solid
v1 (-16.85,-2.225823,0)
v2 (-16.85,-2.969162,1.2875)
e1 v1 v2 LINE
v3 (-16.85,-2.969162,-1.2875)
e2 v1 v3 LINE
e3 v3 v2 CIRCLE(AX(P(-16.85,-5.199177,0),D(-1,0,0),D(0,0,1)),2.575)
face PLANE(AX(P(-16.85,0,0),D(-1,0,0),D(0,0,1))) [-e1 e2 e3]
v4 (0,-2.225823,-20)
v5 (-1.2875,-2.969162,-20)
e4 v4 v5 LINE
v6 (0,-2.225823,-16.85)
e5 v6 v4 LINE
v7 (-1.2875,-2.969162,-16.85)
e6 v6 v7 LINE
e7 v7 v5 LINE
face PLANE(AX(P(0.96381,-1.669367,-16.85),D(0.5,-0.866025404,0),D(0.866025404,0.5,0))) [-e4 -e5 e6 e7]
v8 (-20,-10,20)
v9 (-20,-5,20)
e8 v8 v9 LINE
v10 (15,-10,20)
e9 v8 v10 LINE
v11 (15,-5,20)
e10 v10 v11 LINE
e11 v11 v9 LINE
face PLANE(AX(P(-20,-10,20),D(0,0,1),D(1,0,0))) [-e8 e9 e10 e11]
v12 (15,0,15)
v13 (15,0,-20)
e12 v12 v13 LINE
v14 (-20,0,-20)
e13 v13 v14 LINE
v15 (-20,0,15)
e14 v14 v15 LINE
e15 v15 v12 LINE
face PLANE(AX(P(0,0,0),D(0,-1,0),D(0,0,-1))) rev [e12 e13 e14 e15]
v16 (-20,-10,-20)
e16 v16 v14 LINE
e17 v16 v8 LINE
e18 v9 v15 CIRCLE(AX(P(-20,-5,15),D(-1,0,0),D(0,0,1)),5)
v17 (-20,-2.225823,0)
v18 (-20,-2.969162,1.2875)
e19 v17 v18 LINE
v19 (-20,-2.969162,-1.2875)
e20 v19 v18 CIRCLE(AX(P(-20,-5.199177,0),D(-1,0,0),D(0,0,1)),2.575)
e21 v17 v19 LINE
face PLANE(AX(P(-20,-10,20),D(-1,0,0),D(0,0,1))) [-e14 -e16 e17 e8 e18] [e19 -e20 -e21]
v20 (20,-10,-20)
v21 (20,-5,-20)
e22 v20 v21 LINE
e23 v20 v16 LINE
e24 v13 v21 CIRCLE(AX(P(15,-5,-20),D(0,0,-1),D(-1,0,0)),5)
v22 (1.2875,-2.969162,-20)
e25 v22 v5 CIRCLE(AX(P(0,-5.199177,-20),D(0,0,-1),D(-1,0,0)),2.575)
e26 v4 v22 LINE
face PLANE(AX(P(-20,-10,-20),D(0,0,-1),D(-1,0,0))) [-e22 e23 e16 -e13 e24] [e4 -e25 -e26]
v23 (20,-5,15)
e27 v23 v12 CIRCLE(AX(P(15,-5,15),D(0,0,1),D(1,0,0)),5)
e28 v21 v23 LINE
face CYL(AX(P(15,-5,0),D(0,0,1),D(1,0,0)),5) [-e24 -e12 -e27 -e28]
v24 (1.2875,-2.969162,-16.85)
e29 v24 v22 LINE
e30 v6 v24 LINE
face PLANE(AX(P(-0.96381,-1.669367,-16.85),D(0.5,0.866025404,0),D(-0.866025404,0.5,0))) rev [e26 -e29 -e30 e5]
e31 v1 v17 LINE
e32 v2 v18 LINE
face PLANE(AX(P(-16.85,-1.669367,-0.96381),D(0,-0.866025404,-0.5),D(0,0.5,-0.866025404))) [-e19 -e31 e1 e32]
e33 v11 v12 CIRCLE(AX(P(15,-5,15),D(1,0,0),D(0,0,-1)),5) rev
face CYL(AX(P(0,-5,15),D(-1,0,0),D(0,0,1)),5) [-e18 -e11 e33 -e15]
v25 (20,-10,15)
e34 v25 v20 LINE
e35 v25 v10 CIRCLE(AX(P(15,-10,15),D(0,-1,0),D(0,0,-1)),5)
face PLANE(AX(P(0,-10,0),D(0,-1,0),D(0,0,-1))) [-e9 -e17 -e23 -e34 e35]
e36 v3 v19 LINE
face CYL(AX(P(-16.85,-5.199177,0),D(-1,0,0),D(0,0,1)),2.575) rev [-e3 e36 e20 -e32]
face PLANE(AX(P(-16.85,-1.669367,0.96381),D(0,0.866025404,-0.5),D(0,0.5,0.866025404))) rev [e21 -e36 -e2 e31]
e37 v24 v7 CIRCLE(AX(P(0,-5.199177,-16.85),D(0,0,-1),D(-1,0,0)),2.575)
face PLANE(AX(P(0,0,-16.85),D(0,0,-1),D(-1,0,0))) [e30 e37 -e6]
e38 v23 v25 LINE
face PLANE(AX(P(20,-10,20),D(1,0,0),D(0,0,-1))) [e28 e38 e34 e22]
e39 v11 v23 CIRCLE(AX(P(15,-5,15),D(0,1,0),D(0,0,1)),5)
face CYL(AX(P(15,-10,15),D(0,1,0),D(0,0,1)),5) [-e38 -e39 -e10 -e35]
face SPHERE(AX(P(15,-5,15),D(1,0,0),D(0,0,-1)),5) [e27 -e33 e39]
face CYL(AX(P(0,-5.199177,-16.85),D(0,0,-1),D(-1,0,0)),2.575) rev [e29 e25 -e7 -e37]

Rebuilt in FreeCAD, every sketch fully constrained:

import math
import FreeCAD as App
import Part
import Sketcher
from FreeCAD import Vector
Q = App.Units.Quantity


def edges_at(feature, points):
    """Names of the edges that pass closest to the given points."""
    edges = feature.Shape.Edges
    near = lambda p: min(range(len(edges)), key=lambda i: edges[i].distToShape(Part.Vertex(*p))[0])
    return sorted({f"Edge{near(p) + 1}" for p in points})

doc = App.newDocument("Part")
body = doc.addObject("PartDesign::Body", "Body")

sketch1 = doc.addObject("Sketcher::SketchObject", "Sketch")
body.addObject(sketch1)
sketch1.AttachmentSupport = (doc.XZ_Plane, [""])
sketch1.MapMode = "FlatFace"
sketch1.addGeometry([
    Part.LineSegment(Vector(-20, -20, 0), Vector(-20, 20, 0)),
    Part.LineSegment(Vector(-20, 20, 0), Vector(20, 20, 0)),
    Part.LineSegment(Vector(20, 20, 0), Vector(20, -20, 0)),
    Part.LineSegment(Vector(20, -20, 0), Vector(-20, -20, 0)),
], False)
sketch1.addConstraint([
    Sketcher.Constraint("Coincident", 0, 2, 1, 1),
    Sketcher.Constraint("Coincident", 1, 2, 2, 1),
    Sketcher.Constraint("Coincident", 2, 2, 3, 1),
    Sketcher.Constraint("Coincident", 3, 2, 0, 1),
    Sketcher.Constraint("Vertical", 0),
    Sketcher.Constraint("Horizontal", 1),
    Sketcher.Constraint("Vertical", 2),
    Sketcher.Constraint("Horizontal", 3),
    Sketcher.Constraint("Symmetric", 0, 2, 2, 2, -1, 1),
    Sketcher.Constraint("Equal", 3, 0),
    Sketcher.Constraint("DistanceX", 1, 1, 1, 2, Q("40 mm")),
])
pad1 = doc.addObject("PartDesign::Pad", "Pad")
body.addObject(pad1)
pad1.Profile = sketch1
pad1.Length = 10

sketch2 = doc.addObject("Sketcher::SketchObject", "Sketch001")
body.addObject(sketch2)
sketch2.AttachmentSupport = (doc.YZ_Plane, [""])
sketch2.MapMode = "FlatFace"
sketch2.AttachmentOffset = App.Placement(Vector(0, 0, -20), App.Rotation())
sketch2.addGeometry([
    Part.LineSegment(Vector(-3, 1.3, 0), Vector(-2.2, 0, 0)),
    Part.LineSegment(Vector(-2.2, 0, 0), Vector(-3, -1.3, 0)),
    Part.ArcOfCircle(Part.Circle(Vector(-5.2, 0, 0), Vector(0, 0, 1), 2.6), math.radians(30), math.radians(330)),
], False)
sketch2.addConstraint([
    Sketcher.Constraint("Coincident", 0, 2, 1, 1),
    Sketcher.Constraint("Tangent", 1, 2, 2, 2),
    Sketcher.Constraint("Tangent", 2, 1, 0, 1),
    Sketcher.Constraint("Symmetric", 1, 2, 2, 1, -1),
    Sketcher.Constraint("Angle", 0, Q("-60 deg")),
    Sketcher.Constraint("Radius", 2, Q("2.575 mm")),
    Sketcher.Constraint("DistanceX", 1, 2, -1, 1, Q("2.969162 mm")),
])
pocket1 = doc.addObject("PartDesign::Pocket", "Pocket")
body.addObject(pocket1)
pocket1.Profile = sketch2
pocket1.Length = 3.15
pocket1.Reversed = True
doc.recompute()

polarpattern = doc.addObject("PartDesign::PolarPattern", "PolarPattern")
body.addObject(polarpattern)
polarpattern.Originals = [pocket1]
polarpattern.Axis = (doc.Y_Axis, [""])
polarpattern.Angle = 90
polarpattern.Occurrences = 2
polarpattern.Reversed = True
body.Tip = polarpattern
doc.recompute()

fillet = doc.addObject("PartDesign::Fillet", "Fillet")
body.addObject(fillet)
fillet.Base = (polarpattern, edges_at(polarpattern, [(20, 0, 0), (0, 0, 20), (20, -5, 20)]))
fillet.Radius = 5

doc.recompute()
